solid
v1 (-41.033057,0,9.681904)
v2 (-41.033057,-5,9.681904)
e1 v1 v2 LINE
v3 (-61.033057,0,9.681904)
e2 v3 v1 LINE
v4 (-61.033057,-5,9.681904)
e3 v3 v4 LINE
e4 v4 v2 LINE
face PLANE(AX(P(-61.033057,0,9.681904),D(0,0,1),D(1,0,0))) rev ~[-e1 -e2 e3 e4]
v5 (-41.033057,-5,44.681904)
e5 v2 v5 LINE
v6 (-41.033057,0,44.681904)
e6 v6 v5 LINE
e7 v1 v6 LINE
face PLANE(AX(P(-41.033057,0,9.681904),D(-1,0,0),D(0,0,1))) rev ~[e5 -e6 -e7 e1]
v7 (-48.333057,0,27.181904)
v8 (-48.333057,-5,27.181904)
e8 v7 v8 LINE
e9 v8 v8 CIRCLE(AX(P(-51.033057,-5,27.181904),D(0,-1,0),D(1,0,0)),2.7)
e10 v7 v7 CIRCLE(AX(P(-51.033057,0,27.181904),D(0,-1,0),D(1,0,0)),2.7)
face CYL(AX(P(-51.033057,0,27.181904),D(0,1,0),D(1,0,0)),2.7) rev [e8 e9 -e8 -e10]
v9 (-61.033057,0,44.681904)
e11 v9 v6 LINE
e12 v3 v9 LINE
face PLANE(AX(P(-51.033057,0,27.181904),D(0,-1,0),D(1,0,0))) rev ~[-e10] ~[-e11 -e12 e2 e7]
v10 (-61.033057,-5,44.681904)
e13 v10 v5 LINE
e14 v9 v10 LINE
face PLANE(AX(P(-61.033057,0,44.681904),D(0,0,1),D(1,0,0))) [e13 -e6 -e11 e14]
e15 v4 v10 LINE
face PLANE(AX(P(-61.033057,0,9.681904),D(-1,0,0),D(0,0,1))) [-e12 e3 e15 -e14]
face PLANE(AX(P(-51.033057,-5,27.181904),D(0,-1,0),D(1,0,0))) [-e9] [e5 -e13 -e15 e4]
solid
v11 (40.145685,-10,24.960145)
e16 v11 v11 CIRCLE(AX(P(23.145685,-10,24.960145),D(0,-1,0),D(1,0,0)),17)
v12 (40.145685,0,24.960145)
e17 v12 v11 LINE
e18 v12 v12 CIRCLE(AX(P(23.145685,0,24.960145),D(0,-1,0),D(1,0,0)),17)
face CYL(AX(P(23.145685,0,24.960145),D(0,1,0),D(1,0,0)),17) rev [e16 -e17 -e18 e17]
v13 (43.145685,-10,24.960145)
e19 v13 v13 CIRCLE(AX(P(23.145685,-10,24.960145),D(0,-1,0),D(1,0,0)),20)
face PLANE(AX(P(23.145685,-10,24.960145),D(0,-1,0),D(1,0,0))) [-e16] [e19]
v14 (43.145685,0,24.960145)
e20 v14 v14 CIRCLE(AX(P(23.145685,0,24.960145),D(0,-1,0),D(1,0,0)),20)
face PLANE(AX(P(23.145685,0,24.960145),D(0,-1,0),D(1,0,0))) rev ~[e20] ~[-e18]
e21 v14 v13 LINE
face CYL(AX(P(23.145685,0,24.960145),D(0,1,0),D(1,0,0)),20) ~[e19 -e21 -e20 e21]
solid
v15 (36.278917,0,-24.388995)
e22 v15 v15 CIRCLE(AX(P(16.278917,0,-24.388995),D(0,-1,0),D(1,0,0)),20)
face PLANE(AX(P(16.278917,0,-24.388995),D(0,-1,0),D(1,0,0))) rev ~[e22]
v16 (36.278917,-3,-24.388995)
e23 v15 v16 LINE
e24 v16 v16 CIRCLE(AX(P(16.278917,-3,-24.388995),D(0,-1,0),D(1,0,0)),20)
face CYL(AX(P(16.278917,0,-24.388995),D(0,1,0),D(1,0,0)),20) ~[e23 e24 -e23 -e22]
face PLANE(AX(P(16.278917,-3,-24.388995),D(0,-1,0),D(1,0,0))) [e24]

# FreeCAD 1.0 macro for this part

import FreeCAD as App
import Part
import Sketcher

doc = App.newDocument("Part")
body = doc.addObject("PartDesign::Body", "Body")

# Sketch on XZ plane
sketch1 = body.newObject("Sketcher::SketchObject", "Sketch")
sketch1.AttachmentSupport = (doc.getObject("XZ_Plane"), [""])
sketch1.MapMode = "FlatFace"
sketch1.addGeometry([
    Part.LineSegment(App.Vector(-61, 44.7, 0), App.Vector(-61, 9.7, 0)),  # 0
    Part.LineSegment(App.Vector(-61, 9.7, 0), App.Vector(-41, 9.7, 0)),  # 1
    Part.LineSegment(App.Vector(-41, 9.7, 0), App.Vector(-41, 44.7, 0)),  # 2
    Part.LineSegment(App.Vector(-41, 44.7, 0), App.Vector(-61, 44.7, 0)),  # 3
    Part.Circle(App.Vector(-51, 27.2, 0), App.Vector(0, 0, 1), 2.7),  # 4
], False)
sketch1.addConstraint([
    Sketcher.Constraint("Coincident", 0, 2, 1, 1),
    Sketcher.Constraint("Coincident", 1, 2, 2, 1),
    Sketcher.Constraint("Coincident", 2, 2, 3, 1),
    Sketcher.Constraint("Coincident", 3, 2, 0, 1),
    Sketcher.Constraint("Vertical", 0),
    Sketcher.Constraint("Horizontal", 1),
    Sketcher.Constraint("Vertical", 2),
    Sketcher.Constraint("Horizontal", 3),
    Sketcher.Constraint("Diameter", 4, 5.4),
    Sketcher.Constraint("DistanceX", 1, 1, 1, 2, 20.0),
    Sketcher.Constraint("DistanceY", 0, 2, 0, 1, 35.0),
    Sketcher.Constraint("DistanceX", 0, 2, 4, 3, 10.0),
    Sketcher.Constraint("DistanceY", 0, 2, 4, 3, 17.5),
    Sketcher.Constraint("DistanceX", 4, 3, -1, 1, 51.033057),
    Sketcher.Constraint("DistanceY", -1, 1, 4, 3, 27.181904),
])
pad1 = body.newObject("PartDesign::Pad", "Pad")
pad1.Profile = sketch1
pad1.Length = 5
body2 = doc.addObject("PartDesign::Body", "Body001")

# Sketch on XZ plane
sketch2 = body2.newObject("Sketcher::SketchObject", "Sketch001")
sketch2.AttachmentSupport = (doc.getObject("XZ_Plane001"), [""])
sketch2.MapMode = "FlatFace"
sketch2.addGeometry([
    Part.Circle(App.Vector(23, 25, 0), App.Vector(0, 0, 1), 20),
    Part.Circle(App.Vector(23, 25, 0), App.Vector(0, 0, 1), 17),
], False)
sketch2.addConstraint([
    Sketcher.Constraint("Coincident", 1, 3, 0, 3),
    Sketcher.Constraint("Diameter", 0, 40.0),
    Sketcher.Constraint("Diameter", 1, 34.0),
    Sketcher.Constraint("DistanceX", -1, 1, 0, 3, 23.145685),
    Sketcher.Constraint("DistanceY", -1, 1, 0, 3, 24.960145),
])
pad2 = body2.newObject("PartDesign::Pad", "Pad001")
pad2.Profile = sketch2
pad2.Length = 10
body3 = doc.addObject("PartDesign::Body", "Body002")

# Sketch on XZ plane
sketch3 = body3.newObject("Sketcher::SketchObject", "Sketch002")
sketch3.AttachmentSupport = (doc.getObject("XZ_Plane002"), [""])
sketch3.MapMode = "FlatFace"
sketch3.addGeometry(Part.Circle(App.Vector(16, -24, 0), App.Vector(0, 0, 1), 20), False)
sketch3.addConstraint([
    Sketcher.Constraint("Diameter", 0, 40.0),
    Sketcher.Constraint("DistanceX", -1, 1, 0, 3, 16.278917),
    Sketcher.Constraint("DistanceY", 0, 3, -1, 1, 24.388995),
])
pad3 = body3.newObject("PartDesign::Pad", "Pad002")
pad3.Profile = sketch3
pad3.Length = 3

doc.recompute()
